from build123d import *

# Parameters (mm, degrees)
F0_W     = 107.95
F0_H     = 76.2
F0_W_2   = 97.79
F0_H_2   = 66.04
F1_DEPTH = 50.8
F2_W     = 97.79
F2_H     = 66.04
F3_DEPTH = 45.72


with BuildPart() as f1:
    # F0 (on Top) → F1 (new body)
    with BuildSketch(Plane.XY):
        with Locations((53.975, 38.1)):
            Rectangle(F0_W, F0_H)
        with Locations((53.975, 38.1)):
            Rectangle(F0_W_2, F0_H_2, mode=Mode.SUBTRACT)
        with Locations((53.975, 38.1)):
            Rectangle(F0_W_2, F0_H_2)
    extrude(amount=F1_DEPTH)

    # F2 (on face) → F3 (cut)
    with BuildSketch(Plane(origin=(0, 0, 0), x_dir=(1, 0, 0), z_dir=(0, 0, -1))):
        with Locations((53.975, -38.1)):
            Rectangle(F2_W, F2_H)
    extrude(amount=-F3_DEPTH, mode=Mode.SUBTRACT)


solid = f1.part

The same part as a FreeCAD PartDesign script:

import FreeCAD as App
import Part
import Sketcher

V = App.Vector
Q = App.Units.Quantity

doc = App.newDocument("Part")
body = doc.addObject("PartDesign::Body", "Body")

sketch1 = body.newObject("Sketcher::SketchObject", "Sketch")
sketch1.AttachmentSupport = (doc.getObject("XY_Plane"), [""])
sketch1.MapMode = "FlatFace"
sketch1.addGeometry([
    Part.LineSegment(V(0, 76, 0), V(0, 0, 0)),
    Part.LineSegment(V(0, 0, 0), V(108, 0, 0)),
    Part.LineSegment(V(108, 0, 0), V(108, 76, 0)),
    Part.LineSegment(V(108, 76, 0), V(0, 76, 0)),
], False)
sketch1.addConstraint([
    Sketcher.Constraint("Coincident", 0, 2, 1, 1),
    Sketcher.Constraint("Coincident", 1, 2, 2, 1),
    Sketcher.Constraint("Coincident", 2, 2, 3, 1),
    Sketcher.Constraint("Coincident", 3, 2, 0, 1),
    Sketcher.Constraint("Vertical", 0),
    Sketcher.Constraint("Horizontal", 1),
    Sketcher.Constraint("Vertical", 2),
    Sketcher.Constraint("Horizontal", 3),
    Sketcher.Constraint("Coincident", 0, 2, -1, 1),
    Sketcher.Constraint("DistanceY", 0, 2, 0, 1, Q("3 in")),
    Sketcher.Constraint("DistanceX", 1, 1, 1, 2, Q("4.25 in")),
])
pad1 = body.newObject("PartDesign::Pad", "Pad")
pad1.Profile = sketch1
pad1.Length = Q("2 in")

sketch2 = body.newObject("Sketcher::SketchObject", "Sketch001")
sketch2.AttachmentSupport = (doc.getObject("XY_Plane"), [""])
sketch2.MapMode = "FlatFace"
sketch2.addGeometry([
    Part.LineSegment(V(5, 5, 0), V(5, 71, 0)),
    Part.LineSegment(V(5, 71, 0), V(103, 71, 0)),
    Part.LineSegment(V(103, 71, 0), V(103, 5, 0)),
    Part.LineSegment(V(103, 5, 0), V(5, 5, 0)),
], False)
sketch2.addConstraint([
    Sketcher.Constraint("Coincident", 0, 2, 1, 1),
    Sketcher.Constraint("Coincident", 1, 2, 2, 1),
    Sketcher.Constraint("Coincident", 2, 2, 3, 1),
    Sketcher.Constraint("Coincident", 3, 2, 0, 1),
    Sketcher.Constraint("Vertical", 0),
    Sketcher.Constraint("Horizontal", 1),
    Sketcher.Constraint("Vertical", 2),
    Sketcher.Constraint("Horizontal", 3),
    Sketcher.Constraint("DistanceY", 0, 1, 0, 2, Q("2.6 in")),
    Sketcher.Constraint("DistanceX", 1, 1, 1, 2, Q("3.85 in")),
    Sketcher.Constraint("DistanceX", -1, 1, 0, 2, Q("0.2 in")),
    Sketcher.Constraint("DistanceY", -1, 1, 0, 2, Q("2.8 in")),
])
pocket1 = body.newObject("PartDesign::Pocket", "Pocket")
pocket1.Profile = sketch2
pocket1.Length = Q("1.8 in")
pocket1.Reversed = True

doc.recompute()
